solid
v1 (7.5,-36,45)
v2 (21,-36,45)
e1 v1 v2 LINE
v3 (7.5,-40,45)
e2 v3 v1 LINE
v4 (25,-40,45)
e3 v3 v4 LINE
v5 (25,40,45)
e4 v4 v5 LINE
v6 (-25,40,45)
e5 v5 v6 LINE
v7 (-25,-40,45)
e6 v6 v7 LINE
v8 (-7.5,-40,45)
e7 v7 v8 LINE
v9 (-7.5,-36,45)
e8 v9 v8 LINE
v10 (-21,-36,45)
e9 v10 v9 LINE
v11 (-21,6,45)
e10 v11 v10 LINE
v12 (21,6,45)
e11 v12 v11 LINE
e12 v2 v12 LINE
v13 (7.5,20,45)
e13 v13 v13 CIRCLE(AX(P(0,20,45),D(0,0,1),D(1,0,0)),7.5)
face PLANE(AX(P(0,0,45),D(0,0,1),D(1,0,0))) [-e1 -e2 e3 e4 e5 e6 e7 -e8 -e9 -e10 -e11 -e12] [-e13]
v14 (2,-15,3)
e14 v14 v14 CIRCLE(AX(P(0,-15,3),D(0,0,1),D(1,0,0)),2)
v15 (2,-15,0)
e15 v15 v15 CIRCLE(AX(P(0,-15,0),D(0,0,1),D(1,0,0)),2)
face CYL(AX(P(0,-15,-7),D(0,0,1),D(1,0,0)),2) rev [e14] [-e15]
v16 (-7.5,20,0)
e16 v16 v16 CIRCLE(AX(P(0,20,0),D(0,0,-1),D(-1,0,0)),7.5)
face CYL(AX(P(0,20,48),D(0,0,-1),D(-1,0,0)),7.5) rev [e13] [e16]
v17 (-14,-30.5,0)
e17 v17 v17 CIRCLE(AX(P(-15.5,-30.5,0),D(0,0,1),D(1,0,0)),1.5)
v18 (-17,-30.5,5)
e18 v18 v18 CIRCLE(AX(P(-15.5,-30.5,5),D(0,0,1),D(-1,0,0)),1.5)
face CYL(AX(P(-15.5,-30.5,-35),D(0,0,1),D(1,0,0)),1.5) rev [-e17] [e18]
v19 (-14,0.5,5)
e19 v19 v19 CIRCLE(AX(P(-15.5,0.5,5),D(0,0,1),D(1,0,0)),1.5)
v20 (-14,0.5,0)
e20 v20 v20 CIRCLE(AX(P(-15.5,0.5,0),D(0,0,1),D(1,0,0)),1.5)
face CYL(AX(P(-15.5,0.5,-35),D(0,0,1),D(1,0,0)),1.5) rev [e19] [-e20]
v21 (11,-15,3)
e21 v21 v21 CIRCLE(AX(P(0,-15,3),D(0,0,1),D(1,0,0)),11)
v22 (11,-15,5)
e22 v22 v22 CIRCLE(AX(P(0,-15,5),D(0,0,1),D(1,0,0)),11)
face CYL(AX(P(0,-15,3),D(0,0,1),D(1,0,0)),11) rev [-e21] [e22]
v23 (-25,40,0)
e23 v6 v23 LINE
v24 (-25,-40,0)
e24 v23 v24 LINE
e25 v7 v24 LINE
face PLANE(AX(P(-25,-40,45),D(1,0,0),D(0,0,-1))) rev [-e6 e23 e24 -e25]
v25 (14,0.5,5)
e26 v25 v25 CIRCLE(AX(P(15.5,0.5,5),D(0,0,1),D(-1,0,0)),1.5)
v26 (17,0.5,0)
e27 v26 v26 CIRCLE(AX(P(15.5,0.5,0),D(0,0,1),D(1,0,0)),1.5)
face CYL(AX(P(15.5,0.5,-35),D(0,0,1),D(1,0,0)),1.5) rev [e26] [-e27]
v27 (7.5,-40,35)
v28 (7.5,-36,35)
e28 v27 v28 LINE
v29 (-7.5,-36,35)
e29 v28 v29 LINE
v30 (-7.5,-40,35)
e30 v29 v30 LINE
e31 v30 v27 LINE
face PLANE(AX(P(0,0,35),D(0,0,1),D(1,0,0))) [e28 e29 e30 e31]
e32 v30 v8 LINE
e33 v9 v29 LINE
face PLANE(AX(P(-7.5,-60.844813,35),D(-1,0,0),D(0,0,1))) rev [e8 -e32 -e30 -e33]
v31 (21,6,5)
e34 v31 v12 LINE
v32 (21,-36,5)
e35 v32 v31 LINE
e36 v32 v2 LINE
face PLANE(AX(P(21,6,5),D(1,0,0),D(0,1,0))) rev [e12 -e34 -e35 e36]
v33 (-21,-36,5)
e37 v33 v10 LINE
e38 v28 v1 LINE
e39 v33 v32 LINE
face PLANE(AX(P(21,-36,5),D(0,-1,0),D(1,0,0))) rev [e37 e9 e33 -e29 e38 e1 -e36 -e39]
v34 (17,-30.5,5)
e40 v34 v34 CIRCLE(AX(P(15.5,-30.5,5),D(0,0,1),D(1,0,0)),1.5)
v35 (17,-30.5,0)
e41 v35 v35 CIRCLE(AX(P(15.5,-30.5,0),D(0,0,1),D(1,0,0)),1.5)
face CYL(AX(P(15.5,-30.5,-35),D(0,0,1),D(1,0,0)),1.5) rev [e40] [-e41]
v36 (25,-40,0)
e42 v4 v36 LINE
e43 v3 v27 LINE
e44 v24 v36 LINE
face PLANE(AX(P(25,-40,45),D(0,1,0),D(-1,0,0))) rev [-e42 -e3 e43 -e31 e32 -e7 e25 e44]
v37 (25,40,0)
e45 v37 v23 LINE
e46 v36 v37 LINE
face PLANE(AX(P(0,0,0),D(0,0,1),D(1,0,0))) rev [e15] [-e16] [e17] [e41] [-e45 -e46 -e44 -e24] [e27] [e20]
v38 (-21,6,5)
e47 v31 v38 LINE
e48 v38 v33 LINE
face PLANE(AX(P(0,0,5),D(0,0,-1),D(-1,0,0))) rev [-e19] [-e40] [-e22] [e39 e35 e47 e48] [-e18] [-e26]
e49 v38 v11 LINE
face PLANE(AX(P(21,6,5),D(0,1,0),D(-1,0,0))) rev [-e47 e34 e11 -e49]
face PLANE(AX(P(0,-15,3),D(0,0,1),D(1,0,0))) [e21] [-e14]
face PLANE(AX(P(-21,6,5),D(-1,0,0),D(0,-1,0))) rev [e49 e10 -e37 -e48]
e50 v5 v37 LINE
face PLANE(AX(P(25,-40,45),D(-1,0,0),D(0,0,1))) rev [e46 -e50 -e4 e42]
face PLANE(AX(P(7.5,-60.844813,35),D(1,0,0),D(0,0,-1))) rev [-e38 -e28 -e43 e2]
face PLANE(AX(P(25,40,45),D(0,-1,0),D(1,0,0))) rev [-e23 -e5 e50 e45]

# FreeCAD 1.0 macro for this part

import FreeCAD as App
import Part
import Sketcher

V = App.Vector

doc = App.newDocument("Part")
body = doc.addObject("PartDesign::Body", "Body")

# Sketch on XY plane
sketch1 = doc.addObject("Sketcher::SketchObject", "Sketch")
body.addObject(sketch1)
sketch1.AttachmentSupport = (doc.XY_Plane, [""])
sketch1.MapMode = "FlatFace"
sketch1.addGeometry(Part.LineSegment(V(-25, 40, 0), V(-25, -40, 0)), False)
sketch1.addGeometry(Part.LineSegment(V(-25, -40, 0), V(25, -40, 0)), False)
sketch1.addGeometry(Part.LineSegment(V(25, -40, 0), V(25, 40, 0)), False)
sketch1.addGeometry(Part.LineSegment(V(25, 40, 0), V(-25, 40, 0)), False)
sketch1.addConstraint(Sketcher.Constraint("Coincident", 0, 2, 1, 1))
sketch1.addConstraint(Sketcher.Constraint("Coincident", 1, 2, 2, 1))
sketch1.addConstraint(Sketcher.Constraint("Coincident", 2, 2, 3, 1))
sketch1.addConstraint(Sketcher.Constraint("Coincident", 3, 2, 0, 1))
sketch1.addConstraint(Sketcher.Constraint("Vertical", 0))
sketch1.addConstraint(Sketcher.Constraint("Horizontal", 1))
sketch1.addConstraint(Sketcher.Constraint("Vertical", 2))
sketch1.addConstraint(Sketcher.Constraint("Horizontal", 3))
sketch1.addConstraint(Sketcher.Constraint("Symmetric", 0, 2, 2, 2, -1, 1))
sketch1.addConstraint(Sketcher.Constraint("DistanceX", 1, 1, 1, 2, 50.0))
sketch1.addConstraint(Sketcher.Constraint("DistanceY", 0, 2, 0, 1, 80.0))
pad1 = doc.addObject("PartDesign::Pad", "Pad")
body.addObject(pad1)
pad1.Profile = sketch1
pad1.Length = 45

# Sketch on XY plane
sketch2 = doc.addObject("Sketcher::SketchObject", "Sketch001")
body.addObject(sketch2)
sketch2.AttachmentSupport = (doc.XY_Plane, [""])
sketch2.MapMode = "FlatFace"
sketch2.AttachmentOffset = App.Placement(V(0, 0, 45), App.Rotation())
sketch2.addGeometry(Part.LineSegment(V(-21, 6, 0), V(-21, -36, 0)), False)
sketch2.addGeometry(Part.LineSegment(V(-21, -36, 0), V(21, -36, 0)), False)
sketch2.addGeometry(Part.LineSegment(V(21, -36, 0), V(21, 6, 0)), False)
sketch2.addGeometry(Part.LineSegment(V(21, 6, 0), V(-21, 6, 0)), False)
sketch2.addConstraint(Sketcher.Constraint("Coincident", 0, 2, 1, 1))
sketch2.addConstraint(Sketcher.Constraint("Coincident", 1, 2, 2, 1))
sketch2.addConstraint(Sketcher.Constraint("Coincident", 2, 2, 3, 1))
sketch2.addConstraint(Sketcher.Constraint("Coincident", 3, 2, 0, 1))
sketch2.addConstraint(Sketcher.Constraint("Vertical", 0))
sketch2.addConstraint(Sketcher.Constraint("Horizontal", 1))
sketch2.addConstraint(Sketcher.Constraint("Vertical", 2))
sketch2.addConstraint(Sketcher.Constraint("Horizontal", 3))
sketch2.addConstraint(Sketcher.Constraint("Equal", 3, 0))
sketch2.addConstraint(Sketcher.Constraint("DistanceX", 1, 1, 1, 2, 42.0))
sketch2.addConstraint(Sketcher.Constraint("DistanceX", 0, 2, -1, 1, 21.0))
sketch2.addConstraint(Sketcher.Constraint("DistanceY", 0, 2, -1, 1, 36.0))
pocket1 = doc.addObject("PartDesign::Pocket", "Pocket")
body.addObject(pocket1)
pocket1.Profile = sketch2
pocket1.Length = 40

# Sketch on XY plane
sketch3 = doc.addObject("Sketcher::SketchObject", "Sketch002")
body.addObject(sketch3)
sketch3.AttachmentSupport = (doc.XY_Plane, [""])
sketch3.MapMode = "FlatFace"
sketch3.AttachmentOffset = App.Placement(V(0, 0, 5), App.Rotation())
sketch3.addGeometry(Part.Circle(V(15.5, -30.5, 0), V(0, 0, 1), 1.5), False)
sketch3.addGeometry(Part.Circle(V(15.5, 0.5, 0), V(0, 0, 1), 1.5), False)
sketch3.addGeometry(Part.Circle(V(-15.5, -30.5, 0), V(0, 0, 1), 1.5), False)
sketch3.addGeometry(Part.Circle(V(-15.5, 0.5, 0), V(0, 0, 1), 1.5), False)
sketch3.addConstraint(Sketcher.Constraint("Equal", 0, 1))
sketch3.addConstraint(Sketcher.Constraint("Equal", 1, 2))
sketch3.addConstraint(Sketcher.Constraint("Equal", 2, 3))
sketch3.addConstraint(Sketcher.Constraint("Symmetric", 0, 3, 2, 3, -2))
sketch3.addConstraint(Sketcher.Constraint("Symmetric", 1, 3, 3, 3, -2))
sketch3.addConstraint(Sketcher.Constraint("Vertical", 0, 3, 1, 3))
sketch3.addConstraint(Sketcher.Constraint("Diameter", 0, 3.0))
sketch3.addConstraint(Sketcher.Constraint("DistanceY", 0, 3, 1, 3, 31.0))
sketch3.addConstraint(Sketcher.Constraint("DistanceX", 2, 3, 0, 3, 31.0))
sketch3.addConstraint(Sketcher.Constraint("DistanceY", 0, 3, -1, 1, 30.5))
pocket2 = doc.addObject("PartDesign::Pocket", "Pocket001")
body.addObject(pocket2)
pocket2.Profile = sketch3
pocket2.Length = 40

# Sketch on XY plane
sketch4 = doc.addObject("Sketcher::SketchObject", "Sketch003")
body.addObject(sketch4)
sketch4.AttachmentSupport = (doc.XY_Plane, [""])
sketch4.MapMode = "FlatFace"
sketch4.AttachmentOffset = App.Placement(V(0, 0, 45), App.Rotation())
sketch4.addGeometry(Part.LineSegment(V(-7.5, -19.155187, 0), V(-7.5, -60.844813, 0)), False)
sketch4.addGeometry(Part.LineSegment(V(-7.5, -60.844813, 0), V(7.5, -60.844813, 0)), False)
sketch4.addGeometry(Part.LineSegment(V(7.5, -60.844813, 0), V(7.5, -19.155187, 0)), False)
sketch4.addGeometry(Part.LineSegment(V(7.5, -19.155187, 0), V(-7.5, -19.155187, 0)), False)
sketch4.addConstraint(Sketcher.Constraint("Coincident", 0, 2, 1, 1))
sketch4.addConstraint(Sketcher.Constraint("Coincident", 1, 2, 2, 1))
sketch4.addConstraint(Sketcher.Constraint("Coincident", 2, 2, 3, 1))
sketch4.addConstraint(Sketcher.Constraint("Coincident", 3, 2, 0, 1))
sketch4.addConstraint(Sketcher.Constraint("Vertical", 0))
sketch4.addConstraint(Sketcher.Constraint("Horizontal", 1))
sketch4.addConstraint(Sketcher.Constraint("Vertical", 2))
sketch4.addConstraint(Sketcher.Constraint("Horizontal", 3))
sketch4.addConstraint(Sketcher.Constraint("DistanceX", 1, 1, 1, 2, 15.0))
sketch4.addConstraint(Sketcher.Constraint("DistanceX", 0, 2, -1, 1, 7.5))
sketch4.addConstraint(Sketcher.Constraint("DistanceY", 0, 2, 0, 1, 41.689627))
sketch4.addConstraint(Sketcher.Constraint("DistanceY", 0, 2, -1, 1, 60.844813))
pocket3 = doc.addObject("PartDesign::Pocket", "Pocket002")
body.addObject(pocket3)
pocket3.Profile = sketch4
pocket3.Length = 10

# Sketch on XY plane
sketch5 = doc.addObject("Sketcher::SketchObject", "Sketch004")
body.addObject(sketch5)
sketch5.AttachmentSupport = (doc.XY_Plane, [""])
sketch5.MapMode = "FlatFace"
sketch5.AttachmentOffset = App.Placement(V(0, 0, 5), App.Rotation())
sketch5.addGeometry(Part.Circle(V(0, -15, 0), V(0, 0, 1), 11), False)
sketch5.addConstraint(Sketcher.Constraint("PointOnObject", 0, 3, -2))
sketch5.addConstraint(Sketcher.Constraint("Diameter", 0, 22.0))
sketch5.addConstraint(Sketcher.Constraint("DistanceY", 0, 3, -1, 1, 15.0))
pocket4 = doc.addObject("PartDesign::Pocket", "Pocket003")
body.addObject(pocket4)
pocket4.Profile = sketch5
pocket4.Length = 2

# Sketch on XY plane
sketch6 = doc.addObject("Sketcher::SketchObject", "Sketch005")
body.addObject(sketch6)
sketch6.AttachmentSupport = (doc.XY_Plane, [""])
sketch6.MapMode = "FlatFace"
sketch6.AttachmentOffset = App.Placement(V(0, 0, 3), App.Rotation())
sketch6.addGeometry(Part.Circle(V(0, -15, 0), V(0, 0, 1), 2), False)
sketch6.addConstraint(Sketcher.Constraint("PointOnObject", 0, 3, -2))
sketch6.addConstraint(Sketcher.Constraint("Diameter", 0, 4.0))
sketch6.addConstraint(Sketcher.Constraint("DistanceY", 0, 3, -1, 1, 15.0))
pocket5 = doc.addObject("PartDesign::Pocket", "Pocket004")
body.addObject(pocket5)
pocket5.Profile = sketch6
pocket5.Length = 10

# Sketch on XY plane
sketch7 = doc.addObject("Sketcher::SketchObject", "Sketch006")
body.addObject(sketch7)
sketch7.AttachmentSupport = (doc.XY_Plane, [""])
sketch7.MapMode = "FlatFace"
sketch7.addGeometry(Part.Circle(V(0, 20, 0), V(0, 0, 1), 2.5), False)
sketch7.addConstraint(Sketcher.Constraint("PointOnObject", 0, 3, -2))
sketch7.addConstraint(Sketcher.Constraint("Diameter", 0, 5.0))
sketch7.addConstraint(Sketcher.Constraint("DistanceY", -1, 1, 0, 3, 20.0))
pocket6 = doc.addObject("PartDesign::Pocket", "Pocket005")
body.addObject(pocket6)
pocket6.Profile = sketch7
pocket6.Length = 10
pocket6.Reversed = True

# Sketch on XY plane
sketch8 = doc.addObject("Sketcher::SketchObject", "Sketch007")
body.addObject(sketch8)
sketch8.AttachmentSupport = (doc.XY_Plane, [""])
sketch8.MapMode = "FlatFace"
sketch8.addGeometry(Part.Circle(V(0, 20, 0), V(0, 0, 1), 7.5), False)
sketch8.addConstraint(Sketcher.Constraint("PointOnObject", 0, 3, -2))
sketch8.addConstraint(Sketcher.Constraint("Diameter", 0, 15.0))
sketch8.addConstraint(Sketcher.Constraint("DistanceY", -1, 1, 0, 3, 20.0))
pocket7 = doc.addObject("PartDesign::Pocket", "Pocket006")
body.addObject(pocket7)
pocket7.Profile = sketch8
pocket7.Length = 48
pocket7.Reversed = True

doc.recompute()
